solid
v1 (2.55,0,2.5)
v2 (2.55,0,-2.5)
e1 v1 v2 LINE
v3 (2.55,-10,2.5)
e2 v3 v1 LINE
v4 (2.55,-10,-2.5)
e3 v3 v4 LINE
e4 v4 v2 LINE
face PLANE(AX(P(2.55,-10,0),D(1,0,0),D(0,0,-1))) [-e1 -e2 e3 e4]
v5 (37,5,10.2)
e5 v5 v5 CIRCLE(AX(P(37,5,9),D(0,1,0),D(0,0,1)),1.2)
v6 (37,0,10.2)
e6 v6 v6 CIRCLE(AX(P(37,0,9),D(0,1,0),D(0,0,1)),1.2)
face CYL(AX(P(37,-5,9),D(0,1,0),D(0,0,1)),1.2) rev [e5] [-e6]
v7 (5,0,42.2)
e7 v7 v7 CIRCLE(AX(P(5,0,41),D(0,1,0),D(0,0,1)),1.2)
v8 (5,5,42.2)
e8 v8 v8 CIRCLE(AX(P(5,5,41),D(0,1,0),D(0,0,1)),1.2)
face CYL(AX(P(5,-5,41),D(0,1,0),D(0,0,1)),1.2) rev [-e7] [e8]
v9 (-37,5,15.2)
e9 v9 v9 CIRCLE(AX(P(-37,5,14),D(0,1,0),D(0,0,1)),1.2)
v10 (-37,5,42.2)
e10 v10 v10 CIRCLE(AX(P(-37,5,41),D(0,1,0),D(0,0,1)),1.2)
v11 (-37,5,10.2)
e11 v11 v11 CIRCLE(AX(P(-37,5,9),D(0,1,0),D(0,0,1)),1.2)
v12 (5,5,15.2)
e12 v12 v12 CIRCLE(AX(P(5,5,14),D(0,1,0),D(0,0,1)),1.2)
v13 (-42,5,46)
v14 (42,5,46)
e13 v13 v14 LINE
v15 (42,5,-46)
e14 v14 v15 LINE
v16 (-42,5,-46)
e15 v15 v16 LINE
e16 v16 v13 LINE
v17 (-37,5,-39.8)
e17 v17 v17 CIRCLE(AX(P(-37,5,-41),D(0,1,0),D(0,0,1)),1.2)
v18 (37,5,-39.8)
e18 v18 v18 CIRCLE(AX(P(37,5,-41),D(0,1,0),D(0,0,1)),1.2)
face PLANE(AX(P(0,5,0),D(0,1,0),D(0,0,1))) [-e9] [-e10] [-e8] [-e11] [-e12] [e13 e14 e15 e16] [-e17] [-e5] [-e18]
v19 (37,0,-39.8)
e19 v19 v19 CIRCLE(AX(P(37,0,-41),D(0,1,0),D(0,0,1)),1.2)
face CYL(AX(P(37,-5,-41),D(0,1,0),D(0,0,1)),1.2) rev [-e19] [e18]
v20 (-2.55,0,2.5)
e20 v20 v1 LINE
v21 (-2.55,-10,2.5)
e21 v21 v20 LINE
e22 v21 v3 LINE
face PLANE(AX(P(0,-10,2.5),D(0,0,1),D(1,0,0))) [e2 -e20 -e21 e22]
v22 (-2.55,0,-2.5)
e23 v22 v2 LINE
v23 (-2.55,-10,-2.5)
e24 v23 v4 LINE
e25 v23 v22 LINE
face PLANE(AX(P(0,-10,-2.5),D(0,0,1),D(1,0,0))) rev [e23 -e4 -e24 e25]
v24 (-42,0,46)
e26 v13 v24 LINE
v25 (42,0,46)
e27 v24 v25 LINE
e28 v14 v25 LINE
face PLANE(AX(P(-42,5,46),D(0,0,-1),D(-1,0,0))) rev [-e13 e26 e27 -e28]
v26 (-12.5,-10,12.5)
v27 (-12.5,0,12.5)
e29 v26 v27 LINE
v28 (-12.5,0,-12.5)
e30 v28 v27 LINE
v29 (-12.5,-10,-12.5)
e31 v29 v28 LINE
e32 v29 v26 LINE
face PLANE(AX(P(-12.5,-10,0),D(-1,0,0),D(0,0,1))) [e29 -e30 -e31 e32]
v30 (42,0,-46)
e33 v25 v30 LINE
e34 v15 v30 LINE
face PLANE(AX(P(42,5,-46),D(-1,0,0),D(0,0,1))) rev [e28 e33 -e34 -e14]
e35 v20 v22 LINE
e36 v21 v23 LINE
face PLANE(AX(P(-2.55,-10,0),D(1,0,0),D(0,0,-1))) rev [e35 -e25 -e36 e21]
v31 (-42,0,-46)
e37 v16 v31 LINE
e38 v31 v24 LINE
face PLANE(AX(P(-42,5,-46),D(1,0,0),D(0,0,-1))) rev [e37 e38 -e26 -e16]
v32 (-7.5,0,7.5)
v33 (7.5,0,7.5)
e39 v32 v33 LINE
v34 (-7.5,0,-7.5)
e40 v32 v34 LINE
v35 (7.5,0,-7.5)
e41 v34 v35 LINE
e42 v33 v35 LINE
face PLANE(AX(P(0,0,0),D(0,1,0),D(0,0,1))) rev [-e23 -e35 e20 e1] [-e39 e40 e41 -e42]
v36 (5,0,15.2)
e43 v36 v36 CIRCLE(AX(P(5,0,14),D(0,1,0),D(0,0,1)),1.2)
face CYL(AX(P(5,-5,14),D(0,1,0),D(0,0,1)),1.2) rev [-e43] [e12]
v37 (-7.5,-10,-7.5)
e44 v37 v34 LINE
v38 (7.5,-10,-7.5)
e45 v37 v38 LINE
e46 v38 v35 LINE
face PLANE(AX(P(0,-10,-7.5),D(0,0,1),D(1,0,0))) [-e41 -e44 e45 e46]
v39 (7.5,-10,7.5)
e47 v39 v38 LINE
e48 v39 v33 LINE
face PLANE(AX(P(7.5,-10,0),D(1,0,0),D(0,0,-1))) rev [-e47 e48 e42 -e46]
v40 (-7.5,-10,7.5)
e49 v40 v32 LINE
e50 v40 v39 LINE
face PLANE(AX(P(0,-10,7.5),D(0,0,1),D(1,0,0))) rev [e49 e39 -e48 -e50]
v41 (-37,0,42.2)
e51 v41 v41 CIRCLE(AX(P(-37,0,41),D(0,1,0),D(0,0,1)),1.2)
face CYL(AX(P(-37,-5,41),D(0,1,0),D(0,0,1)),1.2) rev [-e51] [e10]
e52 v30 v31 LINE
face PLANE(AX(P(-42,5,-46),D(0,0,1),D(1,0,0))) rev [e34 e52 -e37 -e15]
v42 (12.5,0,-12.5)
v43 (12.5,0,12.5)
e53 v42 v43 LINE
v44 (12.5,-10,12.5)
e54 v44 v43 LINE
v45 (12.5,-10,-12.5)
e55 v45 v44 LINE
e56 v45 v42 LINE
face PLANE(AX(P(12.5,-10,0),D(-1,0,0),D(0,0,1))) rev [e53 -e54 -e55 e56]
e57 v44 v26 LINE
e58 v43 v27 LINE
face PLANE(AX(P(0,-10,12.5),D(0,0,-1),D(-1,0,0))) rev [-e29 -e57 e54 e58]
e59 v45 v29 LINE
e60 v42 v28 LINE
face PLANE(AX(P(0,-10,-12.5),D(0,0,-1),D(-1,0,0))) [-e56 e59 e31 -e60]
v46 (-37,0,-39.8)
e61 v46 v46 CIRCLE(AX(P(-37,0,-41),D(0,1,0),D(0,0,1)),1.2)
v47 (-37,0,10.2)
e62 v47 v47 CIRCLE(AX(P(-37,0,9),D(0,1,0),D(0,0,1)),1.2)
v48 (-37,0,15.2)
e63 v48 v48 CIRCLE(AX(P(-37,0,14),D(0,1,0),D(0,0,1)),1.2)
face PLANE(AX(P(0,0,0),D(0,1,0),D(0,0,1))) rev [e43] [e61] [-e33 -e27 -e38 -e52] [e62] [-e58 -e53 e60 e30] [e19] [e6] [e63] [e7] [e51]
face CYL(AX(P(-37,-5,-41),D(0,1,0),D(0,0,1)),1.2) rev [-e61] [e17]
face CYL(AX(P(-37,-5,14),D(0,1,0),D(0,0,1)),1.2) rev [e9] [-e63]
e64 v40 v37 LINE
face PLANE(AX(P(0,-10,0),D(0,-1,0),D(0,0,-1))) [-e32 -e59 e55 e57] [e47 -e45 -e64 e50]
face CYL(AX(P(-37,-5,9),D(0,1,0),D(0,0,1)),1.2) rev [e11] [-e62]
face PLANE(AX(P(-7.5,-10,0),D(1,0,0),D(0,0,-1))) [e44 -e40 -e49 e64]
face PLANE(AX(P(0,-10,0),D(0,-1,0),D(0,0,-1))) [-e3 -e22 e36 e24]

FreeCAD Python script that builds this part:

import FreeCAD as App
import Part
import Sketcher
from FreeCAD import Vector
Q = App.Units.Quantity

doc = App.newDocument("Part")
body = doc.addObject("PartDesign::Body", "Body")

sketch1 = body.newObject("Sketcher::SketchObject", "Sketch")
sketch1.AttachmentSupport = (doc.getObject("XZ_Plane"), [""])
sketch1.MapMode = "FlatFace"
sketch1.addGeometry(Part.LineSegment(Vector(-42, -46, 0), Vector(-42, 46, 0)), False)
sketch1.addGeometry(Part.LineSegment(Vector(-42, 46, 0), Vector(42, 46, 0)), False)
sketch1.addGeometry(Part.LineSegment(Vector(42, 46, 0), Vector(42, -46, 0)), False)
sketch1.addGeometry(Part.LineSegment(Vector(42, -46, 0), Vector(-42, -46, 0)), False)
sketch1.addConstraint(Sketcher.Constraint("Coincident", 0, 2, 1, 1))
sketch1.addConstraint(Sketcher.Constraint("Coincident", 1, 2, 2, 1))
sketch1.addConstraint(Sketcher.Constraint("Coincident", 2, 2, 3, 1))
sketch1.addConstraint(Sketcher.Constraint("Coincident", 3, 2, 0, 1))
sketch1.addConstraint(Sketcher.Constraint("Vertical", 0))
sketch1.addConstraint(Sketcher.Constraint("Horizontal", 1))
sketch1.addConstraint(Sketcher.Constraint("Vertical", 2))
sketch1.addConstraint(Sketcher.Constraint("Horizontal", 3))
sketch1.addConstraint(Sketcher.Constraint("Symmetric", 0, 2, 2, 2, -1, 1))
sketch1.addConstraint(Sketcher.Constraint("DistanceX", 1, 1, 1, 2, Q("84 mm")))
sketch1.addConstraint(Sketcher.Constraint("DistanceY", 0, 1, 0, 2, Q("92 mm")))
pad1 = body.newObject("PartDesign::Pad", "Pad")
pad1.Profile = sketch1
pad1.Length = 5
pad1.Reversed = True

sketch2 = body.newObject("Sketcher::SketchObject", "Sketch001")
sketch2.AttachmentSupport = (doc.getObject("XZ_Plane"), [""])
sketch2.MapMode = "FlatFace"
sketch2.addGeometry(Part.LineSegment(Vector(-12, 12, 0), Vector(-12, -12, 0)), False)
sketch2.addGeometry(Part.LineSegment(Vector(-12, -12, 0), Vector(12, -12, 0)), False)
sketch2.addGeometry(Part.LineSegment(Vector(12, -12, 0), Vector(12, 12, 0)), False)
sketch2.addGeometry(Part.LineSegment(Vector(12, 12, 0), Vector(-12, 12, 0)), False)
sketch2.addGeometry(Part.LineSegment(Vector(8, -8, 0), Vector(-8, -8, 0)), False)
sketch2.addGeometry(Part.LineSegment(Vector(-8, -8, 0), Vector(-8, 8, 0)), False)
sketch2.addGeometry(Part.LineSegment(Vector(-8, 8, 0), Vector(8, 8, 0)), False)
sketch2.addGeometry(Part.LineSegment(Vector(8, 8, 0), Vector(8, -8, 0)), False)
sketch2.addGeometry(Part.LineSegment(Vector(-3, 2, 0), Vector(-3, -2, 0)), False)
sketch2.addGeometry(Part.LineSegment(Vector(-3, -2, 0), Vector(3, -2, 0)), False)
sketch2.addGeometry(Part.LineSegment(Vector(3, -2, 0), Vector(3, 2, 0)), False)
sketch2.addGeometry(Part.LineSegment(Vector(3, 2, 0), Vector(-3, 2, 0)), False)
sketch2.addConstraint(Sketcher.Constraint("Coincident", 0, 2, 1, 1))
sketch2.addConstraint(Sketcher.Constraint("Coincident", 1, 2, 2, 1))
sketch2.addConstraint(Sketcher.Constraint("Coincident", 2, 2, 3, 1))
sketch2.addConstraint(Sketcher.Constraint("Coincident", 3, 2, 0, 1))
sketch2.addConstraint(Sketcher.Constraint("Coincident", 4, 2, 5, 1))
sketch2.addConstraint(Sketcher.Constraint("Coincident", 5, 2, 6, 1))
sketch2.addConstraint(Sketcher.Constraint("Coincident", 6, 2, 7, 1))
sketch2.addConstraint(Sketcher.Constraint("Coincident", 7, 2, 4, 1))
sketch2.addConstraint(Sketcher.Constraint("Coincident", 8, 2, 9, 1))
sketch2.addConstraint(Sketcher.Constraint("Coincident", 9, 2, 10, 1))
sketch2.addConstraint(Sketcher.Constraint("Coincident", 10, 2, 11, 1))
sketch2.addConstraint(Sketcher.Constraint("Coincident", 11, 2, 8, 1))
sketch2.addConstraint(Sketcher.Constraint("Vertical", 0))
sketch2.addConstraint(Sketcher.Constraint("Horizontal", 1))
sketch2.addConstraint(Sketcher.Constraint("Vertical", 2))
sketch2.addConstraint(Sketcher.Constraint("Horizontal", 3))
sketch2.addConstraint(Sketcher.Constraint("Horizontal", 4))
sketch2.addConstraint(Sketcher.Constraint("Vertical", 5))
sketch2.addConstraint(Sketcher.Constraint("Horizontal", 6))
sketch2.addConstraint(Sketcher.Constraint("Vertical", 7))
sketch2.addConstraint(Sketcher.Constraint("Vertical", 8))
sketch2.addConstraint(Sketcher.Constraint("Horizontal", 9))
sketch2.addConstraint(Sketcher.Constraint("Vertical", 10))
sketch2.addConstraint(Sketcher.Constraint("Horizontal", 11))
sketch2.addConstraint(Sketcher.Constraint("Symmetric", 0, 2, 2, 2, -1, 1))
sketch2.addConstraint(Sketcher.Constraint("Symmetric", 4, 2, 6, 2, -1, 1))
sketch2.addConstraint(Sketcher.Constraint("Symmetric", 8, 2, 10, 2, -1, 1))
sketch2.addConstraint(Sketcher.Constraint("Equal", 3, 0))
sketch2.addConstraint(Sketcher.Constraint("Equal", 6, 5))
sketch2.addConstraint(Sketcher.Constraint("DistanceX", 1, 1, 1, 2, Q("25 mm")))
sketch2.addConstraint(Sketcher.Constraint("DistanceX", 4, 2, 4, 1, Q("15 mm")))
sketch2.addConstraint(Sketcher.Constraint("DistanceY", 8, 2, 8, 1, Q("5 mm")))
sketch2.addConstraint(Sketcher.Constraint("DistanceX", 9, 1, 9, 2, Q("5.1 mm")))
pad2 = body.newObject("PartDesign::Pad", "Pad001")
pad2.Profile = sketch2
pad2.Length = 10

sketch3 = body.newObject("Sketcher::SketchObject", "Sketch002")
sketch3.AttachmentSupport = (doc.getObject("XZ_Plane"), [""])
sketch3.MapMode = "FlatFace"
sketch3.AttachmentOffset = App.Placement(Vector(0, 0, -5), App.Rotation())
sketch3.addGeometry(Part.Circle(Vector(-37, 14, 0), Vector(0, 0, 1), 1.2), False)
sketch3.addGeometry(Part.Circle(Vector(5, 14, 0), Vector(0, 0, 1), 1.2), False)
sketch3.addGeometry(Part.Circle(Vector(-37, 41, 0), Vector(0, 0, 1), 1.2), False)
sketch3.addGeometry(Part.Circle(Vector(5, 41, 0), Vector(0, 0, 1), 1.2), False)
sketch3.addGeometry(Part.Circle(Vector(37, 9, 0), Vector(0, 0, 1), 1.2), False)
sketch3.addGeometry(Part.Circle(Vector(-37, 9, 0), Vector(0, 0, 1), 1.2), False)
sketch3.addGeometry(Part.Circle(Vector(-37, -41, 0), Vector(0, 0, 1), 1.2), False)
sketch3.addGeometry(Part.Circle(Vector(37, -41, 0), Vector(0, 0, 1), 1.2), False)
sketch3.addConstraint(Sketcher.Constraint("Equal", 0, 1))
sketch3.addConstraint(Sketcher.Constraint("Equal", 1, 2))
sketch3.addConstraint(Sketcher.Constraint("Equal", 2, 3))
sketch3.addConstraint(Sketcher.Constraint("Equal", 3, 4))
sketch3.addConstraint(Sketcher.Constraint("Equal", 4, 5))
sketch3.addConstraint(Sketcher.Constraint("Equal", 5, 6))
sketch3.addConstraint(Sketcher.Constraint("Equal", 6, 7))
sketch3.addConstraint(Sketcher.Constraint("Symmetric", 2, 3, 7, 3, -1, 1))
sketch3.addConstraint(Sketcher.Constraint("Symmetric", 4, 3, 5, 3, -2))
sketch3.addConstraint(Sketcher.Constraint("Symmetric", 6, 3, 7, 3, -2))
sketch3.addConstraint(Sketcher.Constraint("Horizontal", 0, 3, 1, 3))
sketch3.addConstraint(Sketcher.Constraint("Horizontal", 2, 3, 3, 3))
sketch3.addConstraint(Sketcher.Constraint("Vertical", 0, 3, 2, 3))
sketch3.addConstraint(Sketcher.Constraint("Vertical", 1, 3, 3, 3))
sketch3.addConstraint(Sketcher.Constraint("Vertical", 2, 3, 5, 3))
sketch3.addConstraint(Sketcher.Constraint("Diameter", 0, Q("2.4 mm")))
sketch3.addConstraint(Sketcher.Constraint("DistanceX", 0, 3, -1, 1, Q("37 mm")))
sketch3.addConstraint(Sketcher.Constraint("DistanceY", -1, 1, 0, 3, Q("14 mm")))
sketch3.addConstraint(Sketcher.Constraint("DistanceX", -1, 1, 1, 3, Q("5 mm")))
sketch3.addConstraint(Sketcher.Constraint("DistanceY", -1, 1, 2, 3, Q("41 mm")))
sketch3.addConstraint(Sketcher.Constraint("DistanceY", -1, 1, 4, 3, Q("9 mm")))
pocket1 = body.newObject("PartDesign::Pocket", "Pocket")
pocket1.Profile = sketch3
pocket1.Length = 10
pocket1.Reversed = True

doc.recompute()
